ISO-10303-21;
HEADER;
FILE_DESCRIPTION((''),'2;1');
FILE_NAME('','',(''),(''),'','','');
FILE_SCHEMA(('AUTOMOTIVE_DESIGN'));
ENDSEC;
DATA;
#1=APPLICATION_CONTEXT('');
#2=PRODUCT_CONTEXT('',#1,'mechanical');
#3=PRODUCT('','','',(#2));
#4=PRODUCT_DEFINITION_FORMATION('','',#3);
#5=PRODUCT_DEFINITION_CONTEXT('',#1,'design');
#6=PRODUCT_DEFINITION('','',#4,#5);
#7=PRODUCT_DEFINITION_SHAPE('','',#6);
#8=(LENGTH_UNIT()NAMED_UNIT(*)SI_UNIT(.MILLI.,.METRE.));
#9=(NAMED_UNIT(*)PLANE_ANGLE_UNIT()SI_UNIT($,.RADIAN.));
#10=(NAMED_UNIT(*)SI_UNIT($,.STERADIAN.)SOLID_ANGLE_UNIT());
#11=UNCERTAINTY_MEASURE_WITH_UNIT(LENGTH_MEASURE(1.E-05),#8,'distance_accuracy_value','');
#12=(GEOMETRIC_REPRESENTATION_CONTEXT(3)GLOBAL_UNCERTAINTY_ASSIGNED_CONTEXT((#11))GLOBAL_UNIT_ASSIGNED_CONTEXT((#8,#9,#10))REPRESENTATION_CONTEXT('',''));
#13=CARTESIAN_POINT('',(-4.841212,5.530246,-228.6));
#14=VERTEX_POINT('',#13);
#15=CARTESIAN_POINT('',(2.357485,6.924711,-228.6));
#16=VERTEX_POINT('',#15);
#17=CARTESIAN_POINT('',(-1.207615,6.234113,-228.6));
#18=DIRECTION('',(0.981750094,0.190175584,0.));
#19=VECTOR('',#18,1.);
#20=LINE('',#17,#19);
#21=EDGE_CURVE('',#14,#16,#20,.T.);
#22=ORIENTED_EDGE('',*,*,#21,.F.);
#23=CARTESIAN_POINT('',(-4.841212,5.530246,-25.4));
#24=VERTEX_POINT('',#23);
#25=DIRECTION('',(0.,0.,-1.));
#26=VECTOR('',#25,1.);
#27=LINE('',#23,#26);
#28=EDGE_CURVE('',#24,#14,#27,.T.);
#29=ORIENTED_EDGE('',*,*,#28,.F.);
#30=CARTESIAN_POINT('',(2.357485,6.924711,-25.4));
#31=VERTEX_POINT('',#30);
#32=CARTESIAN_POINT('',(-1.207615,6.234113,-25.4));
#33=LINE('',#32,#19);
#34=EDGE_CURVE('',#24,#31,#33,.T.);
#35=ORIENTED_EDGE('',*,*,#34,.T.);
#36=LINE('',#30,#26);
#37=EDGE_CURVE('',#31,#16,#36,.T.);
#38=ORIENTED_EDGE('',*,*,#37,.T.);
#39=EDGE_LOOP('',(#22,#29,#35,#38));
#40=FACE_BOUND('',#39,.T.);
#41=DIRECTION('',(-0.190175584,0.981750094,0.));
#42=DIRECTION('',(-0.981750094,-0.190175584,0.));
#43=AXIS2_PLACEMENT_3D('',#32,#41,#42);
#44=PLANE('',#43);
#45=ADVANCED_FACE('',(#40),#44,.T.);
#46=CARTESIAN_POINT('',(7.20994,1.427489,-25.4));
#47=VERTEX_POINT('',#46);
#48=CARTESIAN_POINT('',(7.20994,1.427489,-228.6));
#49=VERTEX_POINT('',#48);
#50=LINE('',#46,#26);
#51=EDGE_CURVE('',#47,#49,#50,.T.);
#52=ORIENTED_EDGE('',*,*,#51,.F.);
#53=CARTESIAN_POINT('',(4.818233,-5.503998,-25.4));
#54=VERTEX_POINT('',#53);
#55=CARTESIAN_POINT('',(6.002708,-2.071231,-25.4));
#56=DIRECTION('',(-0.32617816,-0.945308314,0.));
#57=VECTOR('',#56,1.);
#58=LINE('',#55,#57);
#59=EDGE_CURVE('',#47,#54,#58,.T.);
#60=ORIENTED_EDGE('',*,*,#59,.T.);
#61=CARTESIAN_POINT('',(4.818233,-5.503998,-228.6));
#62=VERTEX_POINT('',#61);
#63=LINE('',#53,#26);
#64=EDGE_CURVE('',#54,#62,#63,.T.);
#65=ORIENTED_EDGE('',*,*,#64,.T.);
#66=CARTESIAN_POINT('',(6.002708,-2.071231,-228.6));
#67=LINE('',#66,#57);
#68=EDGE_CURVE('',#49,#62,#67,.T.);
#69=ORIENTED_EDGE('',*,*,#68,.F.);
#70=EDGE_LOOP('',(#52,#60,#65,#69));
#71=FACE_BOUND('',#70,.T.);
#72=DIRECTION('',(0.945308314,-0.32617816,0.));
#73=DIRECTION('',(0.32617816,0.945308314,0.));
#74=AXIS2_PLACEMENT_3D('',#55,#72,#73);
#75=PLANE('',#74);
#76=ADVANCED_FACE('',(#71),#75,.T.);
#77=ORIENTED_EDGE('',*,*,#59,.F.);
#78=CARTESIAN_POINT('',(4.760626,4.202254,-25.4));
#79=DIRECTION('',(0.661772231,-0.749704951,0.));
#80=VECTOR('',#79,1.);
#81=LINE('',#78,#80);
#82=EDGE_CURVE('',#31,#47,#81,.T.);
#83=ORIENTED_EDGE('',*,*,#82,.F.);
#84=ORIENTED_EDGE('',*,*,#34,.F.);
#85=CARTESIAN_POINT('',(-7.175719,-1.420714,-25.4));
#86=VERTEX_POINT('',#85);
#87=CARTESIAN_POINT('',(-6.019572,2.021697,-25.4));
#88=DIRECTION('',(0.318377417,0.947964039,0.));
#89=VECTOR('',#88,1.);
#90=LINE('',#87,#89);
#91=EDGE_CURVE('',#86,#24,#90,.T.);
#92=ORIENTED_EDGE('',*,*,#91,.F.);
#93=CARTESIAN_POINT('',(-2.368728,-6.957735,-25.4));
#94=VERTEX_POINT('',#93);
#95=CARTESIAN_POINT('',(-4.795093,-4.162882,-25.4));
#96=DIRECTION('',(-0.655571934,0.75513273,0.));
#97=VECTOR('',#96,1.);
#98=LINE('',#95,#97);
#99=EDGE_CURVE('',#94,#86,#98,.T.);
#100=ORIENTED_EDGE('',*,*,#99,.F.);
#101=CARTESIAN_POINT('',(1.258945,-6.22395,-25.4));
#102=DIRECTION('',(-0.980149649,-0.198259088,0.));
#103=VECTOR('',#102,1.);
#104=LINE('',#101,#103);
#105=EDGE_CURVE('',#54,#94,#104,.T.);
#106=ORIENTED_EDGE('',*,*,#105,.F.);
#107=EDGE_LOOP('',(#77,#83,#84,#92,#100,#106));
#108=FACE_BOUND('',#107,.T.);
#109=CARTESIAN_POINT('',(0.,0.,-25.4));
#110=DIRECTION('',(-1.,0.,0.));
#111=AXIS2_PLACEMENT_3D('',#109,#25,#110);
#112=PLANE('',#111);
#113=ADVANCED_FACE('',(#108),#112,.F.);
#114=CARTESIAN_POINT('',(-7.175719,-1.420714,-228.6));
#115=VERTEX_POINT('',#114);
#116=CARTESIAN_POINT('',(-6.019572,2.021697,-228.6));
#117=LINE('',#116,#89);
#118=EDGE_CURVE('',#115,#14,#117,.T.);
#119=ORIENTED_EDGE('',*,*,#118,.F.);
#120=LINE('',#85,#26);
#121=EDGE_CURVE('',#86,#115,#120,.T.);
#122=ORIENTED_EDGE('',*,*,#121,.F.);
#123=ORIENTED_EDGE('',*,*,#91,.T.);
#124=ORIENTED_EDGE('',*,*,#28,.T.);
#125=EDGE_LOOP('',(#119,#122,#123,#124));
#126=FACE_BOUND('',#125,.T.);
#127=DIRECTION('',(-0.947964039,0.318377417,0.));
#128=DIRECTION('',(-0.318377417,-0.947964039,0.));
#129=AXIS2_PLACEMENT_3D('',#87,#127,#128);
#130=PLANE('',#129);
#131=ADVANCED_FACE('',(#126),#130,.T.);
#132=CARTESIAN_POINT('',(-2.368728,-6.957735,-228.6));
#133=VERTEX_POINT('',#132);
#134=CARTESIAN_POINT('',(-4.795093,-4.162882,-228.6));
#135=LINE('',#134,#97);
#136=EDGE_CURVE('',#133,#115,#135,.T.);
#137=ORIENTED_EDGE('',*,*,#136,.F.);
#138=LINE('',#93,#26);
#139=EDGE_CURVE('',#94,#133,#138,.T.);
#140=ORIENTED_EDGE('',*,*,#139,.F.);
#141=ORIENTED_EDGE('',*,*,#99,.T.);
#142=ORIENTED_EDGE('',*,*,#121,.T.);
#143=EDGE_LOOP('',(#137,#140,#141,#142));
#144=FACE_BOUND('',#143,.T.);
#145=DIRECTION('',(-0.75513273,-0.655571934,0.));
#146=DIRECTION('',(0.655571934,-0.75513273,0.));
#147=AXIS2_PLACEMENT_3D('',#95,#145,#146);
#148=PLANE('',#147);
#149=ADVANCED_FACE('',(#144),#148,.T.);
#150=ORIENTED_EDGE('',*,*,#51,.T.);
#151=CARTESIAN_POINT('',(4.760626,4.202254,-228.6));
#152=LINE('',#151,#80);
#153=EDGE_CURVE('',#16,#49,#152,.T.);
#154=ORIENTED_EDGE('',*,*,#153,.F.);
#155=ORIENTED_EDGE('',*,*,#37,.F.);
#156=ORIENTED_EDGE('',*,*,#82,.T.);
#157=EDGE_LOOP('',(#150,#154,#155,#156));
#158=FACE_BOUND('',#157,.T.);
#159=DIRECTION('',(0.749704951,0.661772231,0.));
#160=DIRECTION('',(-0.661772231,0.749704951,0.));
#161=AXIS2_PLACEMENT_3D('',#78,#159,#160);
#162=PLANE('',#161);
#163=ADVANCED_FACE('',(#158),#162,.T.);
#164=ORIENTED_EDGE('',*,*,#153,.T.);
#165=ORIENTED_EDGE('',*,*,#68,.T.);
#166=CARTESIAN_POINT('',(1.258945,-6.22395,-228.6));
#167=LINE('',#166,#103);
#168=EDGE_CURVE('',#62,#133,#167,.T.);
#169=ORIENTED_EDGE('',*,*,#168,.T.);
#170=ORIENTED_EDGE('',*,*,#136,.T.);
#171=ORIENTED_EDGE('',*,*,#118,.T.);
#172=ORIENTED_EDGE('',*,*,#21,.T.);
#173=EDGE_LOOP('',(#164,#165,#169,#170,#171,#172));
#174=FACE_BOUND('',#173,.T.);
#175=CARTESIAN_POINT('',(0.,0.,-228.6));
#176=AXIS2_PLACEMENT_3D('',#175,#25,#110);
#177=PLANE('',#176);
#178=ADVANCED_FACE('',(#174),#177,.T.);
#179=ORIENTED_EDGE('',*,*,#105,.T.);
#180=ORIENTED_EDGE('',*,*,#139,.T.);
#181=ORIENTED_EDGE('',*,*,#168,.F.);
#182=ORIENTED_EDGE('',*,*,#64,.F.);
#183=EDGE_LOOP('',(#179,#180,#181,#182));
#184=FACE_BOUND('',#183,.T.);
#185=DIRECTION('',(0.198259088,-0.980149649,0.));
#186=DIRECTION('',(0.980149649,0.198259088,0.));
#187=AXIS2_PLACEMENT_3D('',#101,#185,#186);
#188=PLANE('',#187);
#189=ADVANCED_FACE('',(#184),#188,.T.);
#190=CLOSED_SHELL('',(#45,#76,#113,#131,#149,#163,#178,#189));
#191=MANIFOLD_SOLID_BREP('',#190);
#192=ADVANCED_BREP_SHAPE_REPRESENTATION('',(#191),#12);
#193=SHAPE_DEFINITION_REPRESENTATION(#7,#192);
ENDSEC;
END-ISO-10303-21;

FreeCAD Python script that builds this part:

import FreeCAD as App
import Part
import Sketcher

V = App.Vector


def add_polygon(sketch, points):
    """Adds a closed chain of lines whose ends are joined by coincident constraints."""
    first, n = sketch.GeometryCount, len(points)
    for a, b in zip(points, points[1:] + points[:1]):
        sketch.addGeometry(Part.LineSegment(App.Vector(*a, 0), App.Vector(*b, 0)), False)
    for i in range(n):
        sketch.addConstraint(Sketcher.Constraint("Coincident", first + i, 2, first + (i + 1) % n, 1))

doc = App.newDocument("Part")
params = doc.addObject("Spreadsheet::Sheet", "Params")
for row, (alias, value) in enumerate([
    ("pad1_length", "8 in"),
], start=1):
    params.set(f"A{row}", alias)
    params.set(f"B{row}", "=" + value)
    params.setAlias(f"B{row}", alias)

body = doc.addObject("PartDesign::Body", "Body")

sketch1 = body.newObject("Sketcher::SketchObject", "Sketch")
sketch1.AttachmentSupport = (doc.getObject("XY_Plane"), [""])
sketch1.MapMode = "FlatFace"
sketch1.AttachmentOffset = App.Placement(V(0, 0, -9 * 25.4), App.Rotation())
add_polygon(sketch1, [(2, 7), (7, 1), (5, -6), (-2, -7), (-7, -1), (-5, 6)])
sketch1.addConstraint([
    Sketcher.Constraint("Equal", 0, 1),
    Sketcher.Constraint("Equal", 1, 2),
    Sketcher.Constraint("Equal", 2, 3),
    Sketcher.Constraint("Equal", 3, 4),
    Sketcher.Constraint("Equal", 4, 5),
    Sketcher.Constraint("DistanceX", -1, 1, 0, 2, 7.20994),
    Sketcher.Constraint("DistanceY", -1, 1, 0, 2, 1.427489),
    Sketcher.Constraint("DistanceX", 3, 2, -1, 1, 7.175719),
    Sketcher.Constraint("DistanceX", 4, 2, -1, 1, 4.841212),
    Sketcher.Constraint("DistanceY", -1, 1, 5, 2, 6.924711),
    Sketcher.Constraint("DistanceX", 2, 2, 1, 2, 7.186961),
    Sketcher.Constraint("DistanceX", 3, 2, 2, 2, 4.806991),
])
pad1 = body.newObject("PartDesign::Pad", "Pad")
pad1.Profile = sketch1
pad1.setExpression("Length", "Params.pad1_length")

doc.recompute()
